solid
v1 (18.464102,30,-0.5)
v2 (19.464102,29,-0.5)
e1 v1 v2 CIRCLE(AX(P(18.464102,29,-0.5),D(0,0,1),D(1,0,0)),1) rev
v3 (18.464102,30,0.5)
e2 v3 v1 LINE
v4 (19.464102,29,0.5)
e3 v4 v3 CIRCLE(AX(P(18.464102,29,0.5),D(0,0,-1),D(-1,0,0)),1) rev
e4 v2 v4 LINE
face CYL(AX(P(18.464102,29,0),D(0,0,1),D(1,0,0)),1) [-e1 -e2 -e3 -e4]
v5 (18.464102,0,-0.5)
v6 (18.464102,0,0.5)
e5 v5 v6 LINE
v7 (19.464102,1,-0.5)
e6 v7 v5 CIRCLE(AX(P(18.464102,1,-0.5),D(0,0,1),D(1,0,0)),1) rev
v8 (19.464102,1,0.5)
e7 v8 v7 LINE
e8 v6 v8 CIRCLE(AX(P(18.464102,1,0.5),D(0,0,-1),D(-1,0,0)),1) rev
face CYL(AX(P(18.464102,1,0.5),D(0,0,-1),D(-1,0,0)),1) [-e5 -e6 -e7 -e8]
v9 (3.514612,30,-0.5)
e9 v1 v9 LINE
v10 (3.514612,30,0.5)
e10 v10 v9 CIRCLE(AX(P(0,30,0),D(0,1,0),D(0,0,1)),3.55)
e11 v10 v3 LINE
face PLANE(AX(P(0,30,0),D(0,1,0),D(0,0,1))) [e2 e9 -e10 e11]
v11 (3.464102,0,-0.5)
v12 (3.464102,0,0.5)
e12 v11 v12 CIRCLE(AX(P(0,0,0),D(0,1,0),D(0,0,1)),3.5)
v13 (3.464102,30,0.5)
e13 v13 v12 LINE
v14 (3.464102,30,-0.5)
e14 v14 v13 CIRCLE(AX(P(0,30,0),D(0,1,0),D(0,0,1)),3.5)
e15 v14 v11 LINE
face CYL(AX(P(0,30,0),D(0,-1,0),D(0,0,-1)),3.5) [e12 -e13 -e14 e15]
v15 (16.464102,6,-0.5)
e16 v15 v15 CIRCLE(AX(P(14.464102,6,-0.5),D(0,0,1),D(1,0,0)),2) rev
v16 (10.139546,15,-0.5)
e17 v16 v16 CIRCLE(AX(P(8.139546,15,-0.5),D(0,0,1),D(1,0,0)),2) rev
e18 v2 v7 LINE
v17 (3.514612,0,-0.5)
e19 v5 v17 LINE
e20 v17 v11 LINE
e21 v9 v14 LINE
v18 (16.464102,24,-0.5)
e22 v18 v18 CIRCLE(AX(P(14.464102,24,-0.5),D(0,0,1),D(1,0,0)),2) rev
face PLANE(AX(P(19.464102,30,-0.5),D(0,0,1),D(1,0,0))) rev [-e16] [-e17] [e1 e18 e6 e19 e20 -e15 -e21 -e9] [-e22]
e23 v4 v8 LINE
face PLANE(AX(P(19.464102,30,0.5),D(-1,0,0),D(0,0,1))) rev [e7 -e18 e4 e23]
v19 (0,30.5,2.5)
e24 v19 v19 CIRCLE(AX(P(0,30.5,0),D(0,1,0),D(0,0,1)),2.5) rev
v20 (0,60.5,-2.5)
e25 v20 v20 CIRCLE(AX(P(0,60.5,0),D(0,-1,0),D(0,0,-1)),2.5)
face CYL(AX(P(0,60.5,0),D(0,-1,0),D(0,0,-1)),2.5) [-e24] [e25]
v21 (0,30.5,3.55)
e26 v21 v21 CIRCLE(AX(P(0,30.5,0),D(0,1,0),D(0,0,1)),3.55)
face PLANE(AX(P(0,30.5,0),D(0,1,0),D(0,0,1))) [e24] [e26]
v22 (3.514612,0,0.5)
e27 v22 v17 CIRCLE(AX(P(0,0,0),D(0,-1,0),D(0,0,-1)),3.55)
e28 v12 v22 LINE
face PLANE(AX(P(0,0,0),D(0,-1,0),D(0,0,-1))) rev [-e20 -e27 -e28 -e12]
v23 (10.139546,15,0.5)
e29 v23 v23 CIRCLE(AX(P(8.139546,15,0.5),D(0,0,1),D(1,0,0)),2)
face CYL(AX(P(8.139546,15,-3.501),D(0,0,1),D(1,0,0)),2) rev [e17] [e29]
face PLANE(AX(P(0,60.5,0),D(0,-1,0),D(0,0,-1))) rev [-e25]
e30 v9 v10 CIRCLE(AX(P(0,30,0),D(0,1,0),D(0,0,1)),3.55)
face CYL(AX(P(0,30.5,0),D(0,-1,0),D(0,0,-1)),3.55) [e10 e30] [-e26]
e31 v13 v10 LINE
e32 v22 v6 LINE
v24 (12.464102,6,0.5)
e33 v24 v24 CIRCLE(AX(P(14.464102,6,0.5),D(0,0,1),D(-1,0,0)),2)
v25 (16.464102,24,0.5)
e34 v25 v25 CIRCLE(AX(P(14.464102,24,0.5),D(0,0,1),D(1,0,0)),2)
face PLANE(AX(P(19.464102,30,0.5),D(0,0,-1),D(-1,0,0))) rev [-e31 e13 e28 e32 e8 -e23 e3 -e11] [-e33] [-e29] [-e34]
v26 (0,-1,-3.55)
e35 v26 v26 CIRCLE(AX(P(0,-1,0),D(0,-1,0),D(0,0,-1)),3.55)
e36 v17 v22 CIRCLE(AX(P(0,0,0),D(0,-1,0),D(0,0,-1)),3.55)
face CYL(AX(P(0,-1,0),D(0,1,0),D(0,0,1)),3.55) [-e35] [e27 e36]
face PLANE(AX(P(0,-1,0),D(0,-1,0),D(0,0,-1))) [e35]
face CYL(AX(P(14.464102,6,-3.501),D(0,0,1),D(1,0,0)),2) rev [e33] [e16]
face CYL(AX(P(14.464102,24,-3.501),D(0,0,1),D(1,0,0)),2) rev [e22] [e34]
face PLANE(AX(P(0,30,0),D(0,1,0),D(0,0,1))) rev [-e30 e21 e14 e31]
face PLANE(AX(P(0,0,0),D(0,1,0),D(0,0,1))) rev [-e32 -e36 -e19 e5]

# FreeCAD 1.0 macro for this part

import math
import FreeCAD as App
import Part
import Sketcher


def edges_at(feature, points):
    """Names of the edges that pass closest to the given points."""
    edges = feature.Shape.Edges
    near = lambda p: min(range(len(edges)), key=lambda i: edges[i].distToShape(Part.Vertex(*p))[0])
    return sorted({f"Edge{near(p) + 1}" for p in points})

doc = App.newDocument("Part")
params = doc.addObject("Spreadsheet::Sheet", "Params")
for row, (alias, value) in enumerate([
    ("sketch1_diameter", "5 mm"),
    ("sketch1_radius", "3.5 mm"),
    ("sketch1_width", "16 mm"),
    ("sketch1_height", "1 mm"),
    ("pad1_length", "30 mm"),
    ("sketch2_diameter", "4 mm"),
    ("sketch3_diameter", "4 mm"),
    ("sketch4_diameter", "4 mm"),
    ("fillet_radius", "1 mm"),
    ("sketch5_diameter", "5 mm"),
    ("pad2_length", "60.5 mm"),
    ("sketch6_diameter", "7.1 mm"),
    ("pad3_length", "1 mm"),
    ("sketch7_diameter", "5 mm"),
    ("sketch7_diameter2", "7.1 mm"),
    ("pad4_length", "0.5 mm"),
], start=1):
    params.set(f"A{row}", alias)
    params.set(f"B{row}", "=" + value)
    params.setAlias(f"B{row}", alias)

body = doc.addObject("PartDesign::Body", "Body")

sketch1 = doc.addObject("Sketcher::SketchObject", "Sketch")
body.addObject(sketch1)
sketch1.AttachmentSupport = (doc.XZ_Plane, [""])
sketch1.MapMode = "FlatFace"
sketch1.addGeometry([
    Part.LineSegment(App.Vector(3.464102, 0.5, 0), App.Vector(19.464102, 0.5, 0)),
    Part.LineSegment(App.Vector(19.464102, 0.5, 0), App.Vector(19.464102, -0.5, 0)),
    Part.LineSegment(App.Vector(19.464102, -0.5, 0), App.Vector(3.464102, -0.5, 0)),
    Part.ArcOfCircle(Part.Circle(App.Vector(0, 0, 0), App.Vector(0, 0, 1), 3.5), math.radians(8.213211), math.radians(351.786789)),
    Part.Circle(App.Vector(0, 0, 0), App.Vector(0, 0, 1), 2.5),
], False)
sketch1.addConstraint([
    Sketcher.Constraint("Coincident", 0, 2, 1, 1),
    Sketcher.Constraint("Coincident", 1, 2, 2, 1),
    Sketcher.Constraint("Coincident", 2, 2, 3, 2),
    Sketcher.Constraint("Coincident", 3, 1, 0, 1),
    Sketcher.Constraint("Horizontal", 0),
    Sketcher.Constraint("Vertical", 1),
    Sketcher.Constraint("Horizontal", 2),
    Sketcher.Constraint("Coincident", 3, 3, -1, 1),
    Sketcher.Constraint("Coincident", 4, 3, -1, 1),
    Sketcher.Constraint("Vertical", 2, 2, 3, 1),
    Sketcher.Constraint("Diameter", 4, 5.0),
    Sketcher.Constraint("Radius", 3, 3.5),
    Sketcher.Constraint("DistanceX", 0, 1, 0, 2, 16.0),
    Sketcher.Constraint("DistanceY", 1, 2, 1, 1, 1.0),
])
sketch1.setExpression("Constraints[10]", "Params.sketch1_diameter")
sketch1.setExpression("Constraints[11]", "Params.sketch1_radius")
sketch1.setExpression("Constraints[12]", "Params.sketch1_width")
sketch1.setExpression("Constraints[13]", "Params.sketch1_height")
pad1 = doc.addObject("PartDesign::Pad", "Pad")
body.addObject(pad1)
pad1.Profile = sketch1
pad1.setExpression("Length", "Params.pad1_length")
pad1.Reversed = True

sketch2 = doc.addObject("Sketcher::SketchObject", "Sketch001")
body.addObject(sketch2)
sketch2.AttachmentSupport = (doc.XY_Plane, [""])
sketch2.MapMode = "FlatFace"
sketch2.AttachmentOffset = App.Placement(App.Vector(0, 0, 0.5), App.Rotation())
sketch2.addGeometry(Part.Circle(App.Vector(14.464102, 24, 0), App.Vector(0, 0, 1), 2), False)
sketch2.addConstraint([
    Sketcher.Constraint("Diameter", 0, 4.0),
    Sketcher.Constraint("DistanceY", -1, 1, 0, 3, 24.0),
    Sketcher.Constraint("DistanceX", -1, 1, 0, 3, 14.464102),
])
sketch2.setExpression("Constraints[0]", "Params.sketch2_diameter")
pocket1 = doc.addObject("PartDesign::Pocket", "Pocket")
body.addObject(pocket1)
pocket1.Profile = sketch2
pocket1.Type = "UpToFirst"

sketch3 = doc.addObject("Sketcher::SketchObject", "Sketch002")
body.addObject(sketch3)
sketch3.AttachmentSupport = (doc.XY_Plane, [""])
sketch3.MapMode = "FlatFace"
sketch3.AttachmentOffset = App.Placement(App.Vector(0, 0, 0.5), App.Rotation())
sketch3.addGeometry(Part.Circle(App.Vector(8.139546, 15, 0), App.Vector(0, 0, 1), 2), False)
sketch3.addConstraint([
    Sketcher.Constraint("Diameter", 0, 4.0),
    Sketcher.Constraint("DistanceY", -1, 1, 0, 3, 15.0),
    Sketcher.Constraint("DistanceX", -1, 1, 0, 3, 8.139546),
])
sketch3.setExpression("Constraints[0]", "Params.sketch3_diameter")
pocket2 = doc.addObject("PartDesign::Pocket", "Pocket001")
body.addObject(pocket2)
pocket2.Profile = sketch3
pocket2.Type = "UpToFirst"

sketch4 = doc.addObject("Sketcher::SketchObject", "Sketch003")
body.addObject(sketch4)
sketch4.AttachmentSupport = (doc.XY_Plane, [""])
sketch4.MapMode = "FlatFace"
sketch4.AttachmentOffset = App.Placement(App.Vector(0, 0, 0.5), App.Rotation())
sketch4.addGeometry(Part.Circle(App.Vector(14.464102, 6, 0), App.Vector(0, 0, 1), 2), False)
sketch4.addConstraint([
    Sketcher.Constraint("Diameter", 0, 4.0),
    Sketcher.Constraint("DistanceY", -1, 1, 0, 3, 6.0),
    Sketcher.Constraint("DistanceX", -1, 1, 0, 3, 14.464102),
])
sketch4.setExpression("Constraints[0]", "Params.sketch4_diameter")
pocket3 = doc.addObject("PartDesign::Pocket", "Pocket002")
body.addObject(pocket3)
pocket3.Profile = sketch4
pocket3.Type = "UpToFirst"
doc.recompute()

fillet = doc.addObject("PartDesign::Fillet", "Fillet")
body.addObject(fillet)
fillet.Base = (pocket3, edges_at(pocket3, [(19.464, 30, 0), (19.464, 0, 0)]))
fillet.setExpression("Radius", "Params.fillet_radius")

sketch5 = doc.addObject("Sketcher::SketchObject", "Sketch004")
body.addObject(sketch5)
sketch5.AttachmentSupport = (doc.XZ_Plane, [""])
sketch5.MapMode = "FlatFace"
sketch5.addGeometry(Part.Circle(App.Vector(0, 0, 0), App.Vector(0, 0, 1), 2.5), False)
sketch5.addConstraint([
    Sketcher.Constraint("Coincident", 0, 3, -1, 1),
    Sketcher.Constraint("Diameter", 0, 5.0),
])
sketch5.setExpression("Constraints[1]", "Params.sketch5_diameter")
pad2 = doc.addObject("PartDesign::Pad", "Pad001")
body.addObject(pad2)
pad2.Profile = sketch5
pad2.setExpression("Length", "Params.pad2_length")
pad2.Reversed = True

sketch6 = doc.addObject("Sketcher::SketchObject", "Sketch005")
body.addObject(sketch6)
sketch6.AttachmentSupport = (doc.XZ_Plane, [""])
sketch6.MapMode = "FlatFace"
sketch6.addGeometry(Part.Circle(App.Vector(0, 0, 0), App.Vector(0, 0, 1), 3.55), False)
sketch6.addConstraint([
    Sketcher.Constraint("Coincident", 0, 3, -1, 1),
    Sketcher.Constraint("Diameter", 0, 7.1),
])
sketch6.setExpression("Constraints[1]", "Params.sketch6_diameter")
pad3 = doc.addObject("PartDesign::Pad", "Pad002")
body.addObject(pad3)
pad3.Profile = sketch6
pad3.setExpression("Length", "Params.pad3_length")

sketch7 = doc.addObject("Sketcher::SketchObject", "Sketch006")
body.addObject(sketch7)
sketch7.AttachmentSupport = (doc.XZ_Plane, [""])
sketch7.MapMode = "FlatFace"
sketch7.AttachmentOffset = App.Placement(App.Vector(0, 0, -30), App.Rotation())
sketch7.addGeometry([
    Part.Circle(App.Vector(0, 0, 0), App.Vector(0, 0, 1), 3.55),
    Part.Circle(App.Vector(0, 0, 0), App.Vector(0, 0, 1), 2.5),
], False)
sketch7.addConstraint([
    Sketcher.Constraint("Coincident", 0, 3, -1, 1),
    Sketcher.Constraint("Coincident", 1, 3, -1, 1),
    Sketcher.Constraint("Diameter", 1, 5.0),
    Sketcher.Constraint("Diameter", 0, 7.1),
])
sketch7.setExpression("Constraints[2]", "Params.sketch7_diameter")
sketch7.setExpression("Constraints[3]", "Params.sketch7_diameter2")
pad4 = doc.addObject("PartDesign::Pad", "Pad003")
body.addObject(pad4)
pad4.Profile = sketch7
pad4.setExpression("Length", "Params.pad4_length")
pad4.Reversed = True

doc.recompute()
